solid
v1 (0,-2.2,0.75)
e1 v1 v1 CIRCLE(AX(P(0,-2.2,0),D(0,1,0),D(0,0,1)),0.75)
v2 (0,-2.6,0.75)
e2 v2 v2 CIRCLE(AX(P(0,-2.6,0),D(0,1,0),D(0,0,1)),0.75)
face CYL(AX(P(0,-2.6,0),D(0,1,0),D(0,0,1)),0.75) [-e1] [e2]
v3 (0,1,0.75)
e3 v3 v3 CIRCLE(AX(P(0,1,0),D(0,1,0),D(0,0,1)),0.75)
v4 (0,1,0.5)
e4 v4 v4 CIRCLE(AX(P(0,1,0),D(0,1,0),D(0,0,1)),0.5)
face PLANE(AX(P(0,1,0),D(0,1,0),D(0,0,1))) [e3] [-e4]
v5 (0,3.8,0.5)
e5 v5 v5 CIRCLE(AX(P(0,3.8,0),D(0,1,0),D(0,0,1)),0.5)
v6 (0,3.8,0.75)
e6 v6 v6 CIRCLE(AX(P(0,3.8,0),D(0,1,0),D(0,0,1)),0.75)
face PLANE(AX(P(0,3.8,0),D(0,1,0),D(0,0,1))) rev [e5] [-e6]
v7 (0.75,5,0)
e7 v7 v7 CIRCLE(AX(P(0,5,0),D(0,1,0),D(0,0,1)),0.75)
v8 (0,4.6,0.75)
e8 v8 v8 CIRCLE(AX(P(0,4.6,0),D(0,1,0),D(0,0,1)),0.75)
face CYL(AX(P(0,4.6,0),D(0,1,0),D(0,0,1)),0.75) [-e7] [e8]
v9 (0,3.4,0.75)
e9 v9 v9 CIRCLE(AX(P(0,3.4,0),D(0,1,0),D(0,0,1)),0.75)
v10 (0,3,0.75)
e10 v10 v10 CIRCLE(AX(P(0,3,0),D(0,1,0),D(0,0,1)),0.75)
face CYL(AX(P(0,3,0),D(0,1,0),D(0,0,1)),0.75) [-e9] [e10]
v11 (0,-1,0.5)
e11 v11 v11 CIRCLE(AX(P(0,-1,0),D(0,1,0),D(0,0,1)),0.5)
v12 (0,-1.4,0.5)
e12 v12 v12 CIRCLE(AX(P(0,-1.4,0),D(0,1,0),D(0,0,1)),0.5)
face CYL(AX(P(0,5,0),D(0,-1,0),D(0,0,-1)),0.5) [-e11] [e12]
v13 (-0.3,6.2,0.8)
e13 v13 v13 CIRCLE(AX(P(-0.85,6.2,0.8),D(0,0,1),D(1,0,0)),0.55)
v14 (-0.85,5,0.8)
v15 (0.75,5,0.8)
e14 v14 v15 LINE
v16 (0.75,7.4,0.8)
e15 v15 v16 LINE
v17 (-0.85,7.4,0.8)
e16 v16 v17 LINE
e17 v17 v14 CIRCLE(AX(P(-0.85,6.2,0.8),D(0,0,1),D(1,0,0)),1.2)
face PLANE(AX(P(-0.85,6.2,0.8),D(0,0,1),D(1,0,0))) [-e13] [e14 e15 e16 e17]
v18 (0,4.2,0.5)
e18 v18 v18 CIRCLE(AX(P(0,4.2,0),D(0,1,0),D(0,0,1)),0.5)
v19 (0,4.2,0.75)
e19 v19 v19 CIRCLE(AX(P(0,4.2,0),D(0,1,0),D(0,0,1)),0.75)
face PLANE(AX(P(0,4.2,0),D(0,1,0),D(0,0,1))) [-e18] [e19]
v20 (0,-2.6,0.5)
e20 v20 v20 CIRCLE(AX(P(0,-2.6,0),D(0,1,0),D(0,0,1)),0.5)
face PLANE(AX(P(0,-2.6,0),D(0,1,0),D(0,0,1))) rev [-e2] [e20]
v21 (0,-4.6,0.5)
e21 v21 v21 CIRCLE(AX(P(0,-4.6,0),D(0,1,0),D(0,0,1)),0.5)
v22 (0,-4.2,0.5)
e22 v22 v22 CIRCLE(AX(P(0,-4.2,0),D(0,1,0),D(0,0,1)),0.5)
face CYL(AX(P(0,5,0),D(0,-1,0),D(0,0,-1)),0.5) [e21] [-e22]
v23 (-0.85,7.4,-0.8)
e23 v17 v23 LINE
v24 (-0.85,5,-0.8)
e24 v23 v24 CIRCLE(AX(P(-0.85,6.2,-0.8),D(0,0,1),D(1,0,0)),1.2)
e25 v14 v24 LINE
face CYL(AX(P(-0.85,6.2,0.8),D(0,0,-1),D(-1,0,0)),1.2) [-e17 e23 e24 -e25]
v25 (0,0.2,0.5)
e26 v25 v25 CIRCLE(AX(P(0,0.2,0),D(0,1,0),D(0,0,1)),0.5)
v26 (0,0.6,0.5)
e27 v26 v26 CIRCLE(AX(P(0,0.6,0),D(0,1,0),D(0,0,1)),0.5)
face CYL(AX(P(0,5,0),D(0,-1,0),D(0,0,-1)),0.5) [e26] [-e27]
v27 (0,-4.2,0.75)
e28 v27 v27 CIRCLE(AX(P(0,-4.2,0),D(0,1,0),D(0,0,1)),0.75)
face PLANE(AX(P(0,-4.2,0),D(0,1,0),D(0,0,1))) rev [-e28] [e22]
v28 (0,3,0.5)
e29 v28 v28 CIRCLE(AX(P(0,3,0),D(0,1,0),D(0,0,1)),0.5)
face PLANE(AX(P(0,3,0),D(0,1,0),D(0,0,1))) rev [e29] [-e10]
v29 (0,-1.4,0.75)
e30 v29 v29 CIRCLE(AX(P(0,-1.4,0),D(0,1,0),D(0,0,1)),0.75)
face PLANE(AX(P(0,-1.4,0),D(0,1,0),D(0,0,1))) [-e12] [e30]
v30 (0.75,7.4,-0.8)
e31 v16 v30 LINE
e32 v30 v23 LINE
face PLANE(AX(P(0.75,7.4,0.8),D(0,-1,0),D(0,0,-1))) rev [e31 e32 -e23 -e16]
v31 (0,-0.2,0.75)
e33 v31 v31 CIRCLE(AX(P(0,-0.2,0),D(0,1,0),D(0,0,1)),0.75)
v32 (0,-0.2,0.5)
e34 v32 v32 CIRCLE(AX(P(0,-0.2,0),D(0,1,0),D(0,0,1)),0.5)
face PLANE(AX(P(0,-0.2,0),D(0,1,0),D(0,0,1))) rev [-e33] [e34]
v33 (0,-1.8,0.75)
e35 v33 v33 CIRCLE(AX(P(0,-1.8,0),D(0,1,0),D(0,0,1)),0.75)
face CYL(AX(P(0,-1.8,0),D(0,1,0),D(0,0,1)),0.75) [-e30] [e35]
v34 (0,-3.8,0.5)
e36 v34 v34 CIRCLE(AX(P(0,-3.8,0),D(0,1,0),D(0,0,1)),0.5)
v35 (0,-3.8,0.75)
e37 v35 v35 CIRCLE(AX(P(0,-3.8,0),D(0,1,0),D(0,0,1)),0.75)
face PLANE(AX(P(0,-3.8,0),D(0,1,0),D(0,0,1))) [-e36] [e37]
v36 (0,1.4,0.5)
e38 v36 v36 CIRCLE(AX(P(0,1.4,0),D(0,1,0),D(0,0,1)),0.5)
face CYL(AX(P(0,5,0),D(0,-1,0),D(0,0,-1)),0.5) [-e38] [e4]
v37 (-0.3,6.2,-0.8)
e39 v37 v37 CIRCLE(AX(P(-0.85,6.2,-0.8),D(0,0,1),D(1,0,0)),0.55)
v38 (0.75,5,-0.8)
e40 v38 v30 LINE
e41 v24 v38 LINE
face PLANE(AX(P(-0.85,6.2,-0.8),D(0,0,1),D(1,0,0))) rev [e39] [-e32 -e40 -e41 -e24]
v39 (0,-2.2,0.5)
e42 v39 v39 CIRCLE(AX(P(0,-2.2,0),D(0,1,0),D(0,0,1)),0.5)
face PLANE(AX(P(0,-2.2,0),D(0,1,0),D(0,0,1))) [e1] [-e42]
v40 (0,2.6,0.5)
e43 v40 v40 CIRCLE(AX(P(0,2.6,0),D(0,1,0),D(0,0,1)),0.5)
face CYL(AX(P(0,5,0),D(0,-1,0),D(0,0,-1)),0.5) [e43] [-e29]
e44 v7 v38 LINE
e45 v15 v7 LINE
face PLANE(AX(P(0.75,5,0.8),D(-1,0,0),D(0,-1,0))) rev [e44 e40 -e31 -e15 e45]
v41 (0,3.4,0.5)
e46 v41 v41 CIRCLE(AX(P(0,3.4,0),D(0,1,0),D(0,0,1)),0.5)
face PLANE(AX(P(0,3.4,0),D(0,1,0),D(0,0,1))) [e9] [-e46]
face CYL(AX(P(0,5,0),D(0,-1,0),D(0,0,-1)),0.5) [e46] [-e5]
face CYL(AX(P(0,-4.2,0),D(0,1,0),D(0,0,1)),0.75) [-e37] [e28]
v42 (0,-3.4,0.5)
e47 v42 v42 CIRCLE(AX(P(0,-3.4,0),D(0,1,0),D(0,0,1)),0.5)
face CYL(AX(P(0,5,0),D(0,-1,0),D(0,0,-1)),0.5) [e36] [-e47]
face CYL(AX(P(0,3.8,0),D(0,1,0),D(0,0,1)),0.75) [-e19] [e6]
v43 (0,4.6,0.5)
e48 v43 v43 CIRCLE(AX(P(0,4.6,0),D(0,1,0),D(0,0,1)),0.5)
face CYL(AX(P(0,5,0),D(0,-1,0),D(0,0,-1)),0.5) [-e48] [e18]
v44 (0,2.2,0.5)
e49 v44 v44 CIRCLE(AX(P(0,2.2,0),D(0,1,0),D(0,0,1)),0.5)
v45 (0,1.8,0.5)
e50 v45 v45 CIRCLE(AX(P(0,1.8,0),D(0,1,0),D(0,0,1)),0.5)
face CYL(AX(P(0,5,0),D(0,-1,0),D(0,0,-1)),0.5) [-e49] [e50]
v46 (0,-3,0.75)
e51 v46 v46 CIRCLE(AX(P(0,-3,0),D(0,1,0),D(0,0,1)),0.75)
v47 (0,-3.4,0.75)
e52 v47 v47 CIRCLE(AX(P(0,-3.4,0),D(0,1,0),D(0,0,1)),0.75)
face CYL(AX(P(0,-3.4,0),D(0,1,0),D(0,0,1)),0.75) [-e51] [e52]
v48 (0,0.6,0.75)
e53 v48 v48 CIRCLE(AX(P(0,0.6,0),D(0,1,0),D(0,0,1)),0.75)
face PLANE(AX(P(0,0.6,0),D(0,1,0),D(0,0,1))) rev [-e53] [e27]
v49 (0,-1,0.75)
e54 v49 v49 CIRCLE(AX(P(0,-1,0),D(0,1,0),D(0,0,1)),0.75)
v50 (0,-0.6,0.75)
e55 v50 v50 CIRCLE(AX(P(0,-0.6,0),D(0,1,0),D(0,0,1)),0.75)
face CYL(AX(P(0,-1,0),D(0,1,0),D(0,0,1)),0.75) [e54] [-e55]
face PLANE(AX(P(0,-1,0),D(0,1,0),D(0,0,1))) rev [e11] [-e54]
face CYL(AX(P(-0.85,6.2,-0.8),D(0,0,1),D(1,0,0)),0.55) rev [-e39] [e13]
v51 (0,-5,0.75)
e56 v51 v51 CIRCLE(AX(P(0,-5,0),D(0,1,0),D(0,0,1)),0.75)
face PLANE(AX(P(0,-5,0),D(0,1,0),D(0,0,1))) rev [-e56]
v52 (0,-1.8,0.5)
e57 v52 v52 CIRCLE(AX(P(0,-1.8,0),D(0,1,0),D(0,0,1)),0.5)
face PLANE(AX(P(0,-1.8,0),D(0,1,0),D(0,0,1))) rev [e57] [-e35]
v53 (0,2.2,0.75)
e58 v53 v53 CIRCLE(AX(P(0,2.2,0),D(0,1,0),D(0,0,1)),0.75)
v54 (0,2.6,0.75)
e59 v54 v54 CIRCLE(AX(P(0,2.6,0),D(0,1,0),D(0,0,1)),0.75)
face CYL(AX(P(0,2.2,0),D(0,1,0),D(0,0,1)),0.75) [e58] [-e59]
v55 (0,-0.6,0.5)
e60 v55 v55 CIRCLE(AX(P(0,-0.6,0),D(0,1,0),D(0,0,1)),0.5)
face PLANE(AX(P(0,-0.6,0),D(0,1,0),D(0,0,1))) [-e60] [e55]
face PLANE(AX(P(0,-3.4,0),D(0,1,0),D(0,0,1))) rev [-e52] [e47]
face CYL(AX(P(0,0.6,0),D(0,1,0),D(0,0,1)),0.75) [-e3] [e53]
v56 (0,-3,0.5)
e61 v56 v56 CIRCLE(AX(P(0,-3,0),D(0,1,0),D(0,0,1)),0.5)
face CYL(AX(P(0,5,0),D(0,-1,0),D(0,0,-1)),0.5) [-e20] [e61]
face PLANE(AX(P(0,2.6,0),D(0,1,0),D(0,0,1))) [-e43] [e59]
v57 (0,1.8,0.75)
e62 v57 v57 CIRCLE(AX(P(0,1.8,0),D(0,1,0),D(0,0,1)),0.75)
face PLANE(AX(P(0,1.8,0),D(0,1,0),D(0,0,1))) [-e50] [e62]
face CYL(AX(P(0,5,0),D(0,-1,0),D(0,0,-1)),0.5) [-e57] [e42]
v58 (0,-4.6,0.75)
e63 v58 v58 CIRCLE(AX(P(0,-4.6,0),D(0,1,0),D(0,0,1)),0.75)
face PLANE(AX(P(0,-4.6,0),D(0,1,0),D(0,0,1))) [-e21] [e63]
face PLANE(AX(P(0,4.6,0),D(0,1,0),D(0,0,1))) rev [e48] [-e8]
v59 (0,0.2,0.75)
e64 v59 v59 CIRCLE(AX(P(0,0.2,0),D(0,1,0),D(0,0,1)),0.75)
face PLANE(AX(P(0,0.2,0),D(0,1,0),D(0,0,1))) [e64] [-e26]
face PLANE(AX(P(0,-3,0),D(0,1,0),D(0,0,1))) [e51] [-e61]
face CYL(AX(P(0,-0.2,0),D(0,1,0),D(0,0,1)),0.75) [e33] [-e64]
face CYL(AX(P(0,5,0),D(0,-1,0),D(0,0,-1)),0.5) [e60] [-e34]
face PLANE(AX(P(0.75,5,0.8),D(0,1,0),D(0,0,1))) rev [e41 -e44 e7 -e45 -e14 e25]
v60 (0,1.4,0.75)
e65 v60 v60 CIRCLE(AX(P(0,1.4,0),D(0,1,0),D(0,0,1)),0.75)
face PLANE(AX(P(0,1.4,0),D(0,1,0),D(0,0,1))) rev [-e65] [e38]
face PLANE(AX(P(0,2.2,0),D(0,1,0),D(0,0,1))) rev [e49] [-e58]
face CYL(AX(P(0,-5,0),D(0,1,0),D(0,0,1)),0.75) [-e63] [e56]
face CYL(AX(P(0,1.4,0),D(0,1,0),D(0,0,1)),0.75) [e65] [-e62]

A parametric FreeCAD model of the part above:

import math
import FreeCAD as App
import Part
import Sketcher
from FreeCAD import Vector

doc = App.newDocument("Part")
body = doc.addObject("PartDesign::Body", "Body")

sketch1 = body.newObject("Sketcher::SketchObject", "Sketch")
sketch1.AttachmentSupport = (doc.getObject("XZ_Plane"), [""])
sketch1.MapMode = "FlatFace"
sketch1.addGeometry(Part.Circle(Vector(0, 0, 0), Vector(0, 0, 1), 0.5), False)
sketch1.addConstraint(Sketcher.Constraint("Coincident", 0, 3, -1, 1))
sketch1.addConstraint(Sketcher.Constraint("Diameter", 0, 1.0))
pad1 = body.newObject("PartDesign::Pad", "Pad")
pad1.Profile = sketch1
pad1.Length = 10
pad1.Midplane = True

sketch2 = body.newObject("Sketcher::SketchObject", "Sketch001")
sketch2.AttachmentSupport = (doc.getObject("XZ_Plane"), [""])
sketch2.MapMode = "FlatFace"
sketch2.AttachmentOffset = App.Placement(Vector(0, 0, -5), App.Rotation())
sketch2.addGeometry(Part.Circle(Vector(0, 0, 0), Vector(0, 0, 1), 0.8), False)
sketch2.addConstraint(Sketcher.Constraint("Coincident", 0, 3, -1, 1))
sketch2.addConstraint(Sketcher.Constraint("Diameter", 0, 1.5))
pad2 = body.newObject("PartDesign::Pad", "Pad001")
pad2.Profile = sketch2
pad2.Length = 0.4
doc.recompute()

linearpattern = body.newObject("PartDesign::LinearPattern", "LinearPattern")
linearpattern.Originals = [pad2]
linearpattern.Direction = (doc.getObject("Y_Axis"), [""])
linearpattern.Mode = "offset"
linearpattern.Offset = 0.8
linearpattern.Occurrences = 13
linearpattern.Reversed = True
body.Tip = linearpattern

sketch3 = body.newObject("Sketcher::SketchObject", "Sketch002")
sketch3.AttachmentSupport = (doc.getObject("XY_Plane"), [""])
sketch3.MapMode = "FlatFace"
sketch3.addGeometry(Part.LineSegment(Vector(-0.8, 5, 0), Vector(0.8, 5, 0)), False)
sketch3.addGeometry(Part.LineSegment(Vector(0.8, 5, 0), Vector(0.8, 7.4, 0)), False)
sketch3.addGeometry(Part.LineSegment(Vector(0.8, 7.4, 0), Vector(-0.8, 7.4, 0)), False)
sketch3.addGeometry(Part.ArcOfCircle(Part.Circle(Vector(-0.8, 6.2, 0), Vector(0, 0, 1), 1.2), math.radians(90), math.radians(270)), False)
sketch3.addConstraint(Sketcher.Constraint("Coincident", 0, 2, 1, 1))
sketch3.addConstraint(Sketcher.Constraint("Coincident", 1, 2, 2, 1))
sketch3.addConstraint(Sketcher.Constraint("Tangent", 2, 2, 3, 1))
sketch3.addConstraint(Sketcher.Constraint("Tangent", 3, 2, 0, 1))
sketch3.addConstraint(Sketcher.Constraint("Horizontal", 0))
sketch3.addConstraint(Sketcher.Constraint("Vertical", 1))
sketch3.addConstraint(Sketcher.Constraint("Horizontal", 2))
sketch3.addConstraint(Sketcher.Constraint("Radius", 3, 1.2))
sketch3.addConstraint(Sketcher.Constraint("DistanceX", 0, 1, 0, 2, 1.6))
sketch3.addConstraint(Sketcher.Constraint("DistanceY", -1, 1, 0, 2, 5.0))
sketch3.addConstraint(Sketcher.Constraint("DistanceX", 3, 3, -1, 1, 0.85))
pad3 = body.newObject("PartDesign::Pad", "Pad002")
pad3.Profile = sketch3
pad3.Length = 1.6
pad3.Midplane = True

sketch4 = body.newObject("Sketcher::SketchObject", "Sketch003")
sketch4.AttachmentSupport = (doc.getObject("XY_Plane"), [""])
sketch4.MapMode = "FlatFace"
sketch4.addGeometry(Part.Circle(Vector(-0.8, 6.2, 0), Vector(0, 0, 1), 0.6), False)
sketch4.addConstraint(Sketcher.Constraint("Diameter", 0, 1.1))
sketch4.addConstraint(Sketcher.Constraint("DistanceY", -1, 1, 0, 3, 6.2))
sketch4.addConstraint(Sketcher.Constraint("DistanceX", 0, 3, -1, 1, 0.85))
pocket1 = body.newObject("PartDesign::Pocket", "Pocket")
pocket1.Profile = sketch4
pocket1.Type = "ThroughAll"
pocket1.Midplane = True

doc.recompute()
